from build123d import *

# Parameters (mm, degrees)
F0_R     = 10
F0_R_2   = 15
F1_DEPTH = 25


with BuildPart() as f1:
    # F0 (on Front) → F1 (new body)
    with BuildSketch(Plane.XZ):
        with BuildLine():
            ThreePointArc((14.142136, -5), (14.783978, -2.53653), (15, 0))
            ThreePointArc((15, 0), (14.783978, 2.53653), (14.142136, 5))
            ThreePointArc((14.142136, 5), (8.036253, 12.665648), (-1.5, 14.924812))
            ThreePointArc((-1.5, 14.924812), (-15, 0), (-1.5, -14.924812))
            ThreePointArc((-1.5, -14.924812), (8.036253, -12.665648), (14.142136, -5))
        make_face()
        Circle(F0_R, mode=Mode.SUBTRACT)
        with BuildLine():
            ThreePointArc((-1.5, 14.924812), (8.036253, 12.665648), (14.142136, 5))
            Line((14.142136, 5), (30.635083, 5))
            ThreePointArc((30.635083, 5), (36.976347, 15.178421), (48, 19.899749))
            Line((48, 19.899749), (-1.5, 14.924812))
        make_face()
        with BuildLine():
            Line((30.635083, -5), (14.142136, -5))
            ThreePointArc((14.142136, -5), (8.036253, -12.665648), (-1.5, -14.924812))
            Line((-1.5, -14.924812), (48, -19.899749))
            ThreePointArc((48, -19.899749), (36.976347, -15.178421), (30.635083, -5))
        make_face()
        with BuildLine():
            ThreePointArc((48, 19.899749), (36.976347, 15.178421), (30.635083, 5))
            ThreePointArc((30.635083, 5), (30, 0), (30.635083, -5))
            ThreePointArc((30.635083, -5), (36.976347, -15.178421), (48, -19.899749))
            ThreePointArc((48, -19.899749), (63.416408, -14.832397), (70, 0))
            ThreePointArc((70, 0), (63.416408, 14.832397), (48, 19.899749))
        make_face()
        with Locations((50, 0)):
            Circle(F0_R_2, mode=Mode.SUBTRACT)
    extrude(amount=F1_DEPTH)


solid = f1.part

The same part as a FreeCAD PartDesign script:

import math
import FreeCAD as App
import Part
import Sketcher

doc = App.newDocument("Part")
body = doc.addObject("PartDesign::Body", "Body")

sketch1 = body.newObject("Sketcher::SketchObject", "Sketch")
sketch1.AttachmentSupport = (doc.getObject("XZ_Plane"), [""])
sketch1.MapMode = "FlatFace"
sketch1.addGeometry([
    Part.LineSegment(App.Vector(48, 20, 0), App.Vector(-2, 15, 0)),
    Part.ArcOfCircle(Part.Circle(App.Vector(0, 0, 0), App.Vector(0, 0, 1), 15), math.radians(96), math.radians(264)),
    Part.LineSegment(App.Vector(-2, -15, 0), App.Vector(48, -20, 0)),
    Part.ArcOfCircle(Part.Circle(App.Vector(50, 0, 0), App.Vector(0, 0, 1), 20), math.radians(-96), math.radians(0)),
    Part.ArcOfCircle(Part.Circle(App.Vector(50, 0, 0), App.Vector(0, 0, 1), 20), math.radians(0), math.radians(96)),
    Part.Circle(App.Vector(0, 0, 0), App.Vector(0, 0, 1), 10),
    Part.ArcOfCircle(Part.Circle(App.Vector(0, 0, 0), App.Vector(0, 0, 1), 15), math.radians(-19.47), math.radians(0)),
    Part.ArcOfCircle(Part.Circle(App.Vector(0, 0, 0), App.Vector(0, 0, 1), 15), math.radians(0), math.radians(19.47)),
    Part.LineSegment(App.Vector(14, 5, 0), App.Vector(31, 5, 0)),
    Part.ArcOfCircle(Part.Circle(App.Vector(50, 0, 0), App.Vector(0, 0, 1), 20), math.radians(166), math.radians(194)),
    Part.LineSegment(App.Vector(31, -5, 0), App.Vector(14, -5, 0)),
    Part.Circle(App.Vector(50, 0, 0), App.Vector(0, 0, 1), 15),
], False)
sketch1.addConstraint([
    Sketcher.Constraint("Tangent", 0, 2, 1, 1),
    Sketcher.Constraint("Tangent", 1, 2, 2, 1),
    Sketcher.Constraint("Tangent", 2, 2, 3, 1),
    Sketcher.Constraint("Tangent", 3, 2, 4, 1),
    Sketcher.Constraint("Tangent", 4, 2, 0, 1),
    Sketcher.Constraint("Tangent", 6, 2, 7, 1),
    Sketcher.Constraint("Coincident", 7, 2, 8, 1),
    Sketcher.Constraint("Coincident", 8, 2, 9, 1),
    Sketcher.Constraint("Coincident", 9, 2, 10, 1),
    Sketcher.Constraint("Coincident", 10, 2, 6, 1),
    Sketcher.Constraint("Horizontal", 8),
    Sketcher.Constraint("Horizontal", 10),
    Sketcher.Constraint("Coincident", 1, 3, -1, 1),
    Sketcher.Constraint("Coincident", 5, 3, -1, 1),
    Sketcher.Constraint("Coincident", 9, 3, 3, 3),
    Sketcher.Constraint("Coincident", 11, 3, 3, 3),
    Sketcher.Constraint("Equal", 3, 4),
    Sketcher.Constraint("Equal", 6, 7),
    Sketcher.Constraint("Equal", 1, 11),
    Sketcher.Constraint("Symmetric", 8, 2, 9, 2, -1),
    Sketcher.Constraint("PointOnObject", 3, 2, -1),
    Sketcher.Constraint("PointOnObject", 6, 2, -1),
    Sketcher.Constraint("Vertical", 7, 2, 10, 2),
    Sketcher.Constraint("Diameter", 5, 20.0),
    Sketcher.Constraint("Diameter", 11, 30.0),
    Sketcher.Constraint("Radius", 3, 20.0),
    Sketcher.Constraint("DistanceX", -1, 1, 3, 3, 50.0),
    Sketcher.Constraint("DistanceX", -1, 1, 6, 2, 15.0),
    Sketcher.Constraint("DistanceY", -1, 1, 7, 2, 5.0),
    Sketcher.Constraint("Radius", 9, 20.000008),
    Sketcher.Constraint("Radius", 6, 15.000035),
])
pad1 = body.newObject("PartDesign::Pad", "Pad")
pad1.Profile = sketch1
pad1.Length = 25

doc.recompute()
